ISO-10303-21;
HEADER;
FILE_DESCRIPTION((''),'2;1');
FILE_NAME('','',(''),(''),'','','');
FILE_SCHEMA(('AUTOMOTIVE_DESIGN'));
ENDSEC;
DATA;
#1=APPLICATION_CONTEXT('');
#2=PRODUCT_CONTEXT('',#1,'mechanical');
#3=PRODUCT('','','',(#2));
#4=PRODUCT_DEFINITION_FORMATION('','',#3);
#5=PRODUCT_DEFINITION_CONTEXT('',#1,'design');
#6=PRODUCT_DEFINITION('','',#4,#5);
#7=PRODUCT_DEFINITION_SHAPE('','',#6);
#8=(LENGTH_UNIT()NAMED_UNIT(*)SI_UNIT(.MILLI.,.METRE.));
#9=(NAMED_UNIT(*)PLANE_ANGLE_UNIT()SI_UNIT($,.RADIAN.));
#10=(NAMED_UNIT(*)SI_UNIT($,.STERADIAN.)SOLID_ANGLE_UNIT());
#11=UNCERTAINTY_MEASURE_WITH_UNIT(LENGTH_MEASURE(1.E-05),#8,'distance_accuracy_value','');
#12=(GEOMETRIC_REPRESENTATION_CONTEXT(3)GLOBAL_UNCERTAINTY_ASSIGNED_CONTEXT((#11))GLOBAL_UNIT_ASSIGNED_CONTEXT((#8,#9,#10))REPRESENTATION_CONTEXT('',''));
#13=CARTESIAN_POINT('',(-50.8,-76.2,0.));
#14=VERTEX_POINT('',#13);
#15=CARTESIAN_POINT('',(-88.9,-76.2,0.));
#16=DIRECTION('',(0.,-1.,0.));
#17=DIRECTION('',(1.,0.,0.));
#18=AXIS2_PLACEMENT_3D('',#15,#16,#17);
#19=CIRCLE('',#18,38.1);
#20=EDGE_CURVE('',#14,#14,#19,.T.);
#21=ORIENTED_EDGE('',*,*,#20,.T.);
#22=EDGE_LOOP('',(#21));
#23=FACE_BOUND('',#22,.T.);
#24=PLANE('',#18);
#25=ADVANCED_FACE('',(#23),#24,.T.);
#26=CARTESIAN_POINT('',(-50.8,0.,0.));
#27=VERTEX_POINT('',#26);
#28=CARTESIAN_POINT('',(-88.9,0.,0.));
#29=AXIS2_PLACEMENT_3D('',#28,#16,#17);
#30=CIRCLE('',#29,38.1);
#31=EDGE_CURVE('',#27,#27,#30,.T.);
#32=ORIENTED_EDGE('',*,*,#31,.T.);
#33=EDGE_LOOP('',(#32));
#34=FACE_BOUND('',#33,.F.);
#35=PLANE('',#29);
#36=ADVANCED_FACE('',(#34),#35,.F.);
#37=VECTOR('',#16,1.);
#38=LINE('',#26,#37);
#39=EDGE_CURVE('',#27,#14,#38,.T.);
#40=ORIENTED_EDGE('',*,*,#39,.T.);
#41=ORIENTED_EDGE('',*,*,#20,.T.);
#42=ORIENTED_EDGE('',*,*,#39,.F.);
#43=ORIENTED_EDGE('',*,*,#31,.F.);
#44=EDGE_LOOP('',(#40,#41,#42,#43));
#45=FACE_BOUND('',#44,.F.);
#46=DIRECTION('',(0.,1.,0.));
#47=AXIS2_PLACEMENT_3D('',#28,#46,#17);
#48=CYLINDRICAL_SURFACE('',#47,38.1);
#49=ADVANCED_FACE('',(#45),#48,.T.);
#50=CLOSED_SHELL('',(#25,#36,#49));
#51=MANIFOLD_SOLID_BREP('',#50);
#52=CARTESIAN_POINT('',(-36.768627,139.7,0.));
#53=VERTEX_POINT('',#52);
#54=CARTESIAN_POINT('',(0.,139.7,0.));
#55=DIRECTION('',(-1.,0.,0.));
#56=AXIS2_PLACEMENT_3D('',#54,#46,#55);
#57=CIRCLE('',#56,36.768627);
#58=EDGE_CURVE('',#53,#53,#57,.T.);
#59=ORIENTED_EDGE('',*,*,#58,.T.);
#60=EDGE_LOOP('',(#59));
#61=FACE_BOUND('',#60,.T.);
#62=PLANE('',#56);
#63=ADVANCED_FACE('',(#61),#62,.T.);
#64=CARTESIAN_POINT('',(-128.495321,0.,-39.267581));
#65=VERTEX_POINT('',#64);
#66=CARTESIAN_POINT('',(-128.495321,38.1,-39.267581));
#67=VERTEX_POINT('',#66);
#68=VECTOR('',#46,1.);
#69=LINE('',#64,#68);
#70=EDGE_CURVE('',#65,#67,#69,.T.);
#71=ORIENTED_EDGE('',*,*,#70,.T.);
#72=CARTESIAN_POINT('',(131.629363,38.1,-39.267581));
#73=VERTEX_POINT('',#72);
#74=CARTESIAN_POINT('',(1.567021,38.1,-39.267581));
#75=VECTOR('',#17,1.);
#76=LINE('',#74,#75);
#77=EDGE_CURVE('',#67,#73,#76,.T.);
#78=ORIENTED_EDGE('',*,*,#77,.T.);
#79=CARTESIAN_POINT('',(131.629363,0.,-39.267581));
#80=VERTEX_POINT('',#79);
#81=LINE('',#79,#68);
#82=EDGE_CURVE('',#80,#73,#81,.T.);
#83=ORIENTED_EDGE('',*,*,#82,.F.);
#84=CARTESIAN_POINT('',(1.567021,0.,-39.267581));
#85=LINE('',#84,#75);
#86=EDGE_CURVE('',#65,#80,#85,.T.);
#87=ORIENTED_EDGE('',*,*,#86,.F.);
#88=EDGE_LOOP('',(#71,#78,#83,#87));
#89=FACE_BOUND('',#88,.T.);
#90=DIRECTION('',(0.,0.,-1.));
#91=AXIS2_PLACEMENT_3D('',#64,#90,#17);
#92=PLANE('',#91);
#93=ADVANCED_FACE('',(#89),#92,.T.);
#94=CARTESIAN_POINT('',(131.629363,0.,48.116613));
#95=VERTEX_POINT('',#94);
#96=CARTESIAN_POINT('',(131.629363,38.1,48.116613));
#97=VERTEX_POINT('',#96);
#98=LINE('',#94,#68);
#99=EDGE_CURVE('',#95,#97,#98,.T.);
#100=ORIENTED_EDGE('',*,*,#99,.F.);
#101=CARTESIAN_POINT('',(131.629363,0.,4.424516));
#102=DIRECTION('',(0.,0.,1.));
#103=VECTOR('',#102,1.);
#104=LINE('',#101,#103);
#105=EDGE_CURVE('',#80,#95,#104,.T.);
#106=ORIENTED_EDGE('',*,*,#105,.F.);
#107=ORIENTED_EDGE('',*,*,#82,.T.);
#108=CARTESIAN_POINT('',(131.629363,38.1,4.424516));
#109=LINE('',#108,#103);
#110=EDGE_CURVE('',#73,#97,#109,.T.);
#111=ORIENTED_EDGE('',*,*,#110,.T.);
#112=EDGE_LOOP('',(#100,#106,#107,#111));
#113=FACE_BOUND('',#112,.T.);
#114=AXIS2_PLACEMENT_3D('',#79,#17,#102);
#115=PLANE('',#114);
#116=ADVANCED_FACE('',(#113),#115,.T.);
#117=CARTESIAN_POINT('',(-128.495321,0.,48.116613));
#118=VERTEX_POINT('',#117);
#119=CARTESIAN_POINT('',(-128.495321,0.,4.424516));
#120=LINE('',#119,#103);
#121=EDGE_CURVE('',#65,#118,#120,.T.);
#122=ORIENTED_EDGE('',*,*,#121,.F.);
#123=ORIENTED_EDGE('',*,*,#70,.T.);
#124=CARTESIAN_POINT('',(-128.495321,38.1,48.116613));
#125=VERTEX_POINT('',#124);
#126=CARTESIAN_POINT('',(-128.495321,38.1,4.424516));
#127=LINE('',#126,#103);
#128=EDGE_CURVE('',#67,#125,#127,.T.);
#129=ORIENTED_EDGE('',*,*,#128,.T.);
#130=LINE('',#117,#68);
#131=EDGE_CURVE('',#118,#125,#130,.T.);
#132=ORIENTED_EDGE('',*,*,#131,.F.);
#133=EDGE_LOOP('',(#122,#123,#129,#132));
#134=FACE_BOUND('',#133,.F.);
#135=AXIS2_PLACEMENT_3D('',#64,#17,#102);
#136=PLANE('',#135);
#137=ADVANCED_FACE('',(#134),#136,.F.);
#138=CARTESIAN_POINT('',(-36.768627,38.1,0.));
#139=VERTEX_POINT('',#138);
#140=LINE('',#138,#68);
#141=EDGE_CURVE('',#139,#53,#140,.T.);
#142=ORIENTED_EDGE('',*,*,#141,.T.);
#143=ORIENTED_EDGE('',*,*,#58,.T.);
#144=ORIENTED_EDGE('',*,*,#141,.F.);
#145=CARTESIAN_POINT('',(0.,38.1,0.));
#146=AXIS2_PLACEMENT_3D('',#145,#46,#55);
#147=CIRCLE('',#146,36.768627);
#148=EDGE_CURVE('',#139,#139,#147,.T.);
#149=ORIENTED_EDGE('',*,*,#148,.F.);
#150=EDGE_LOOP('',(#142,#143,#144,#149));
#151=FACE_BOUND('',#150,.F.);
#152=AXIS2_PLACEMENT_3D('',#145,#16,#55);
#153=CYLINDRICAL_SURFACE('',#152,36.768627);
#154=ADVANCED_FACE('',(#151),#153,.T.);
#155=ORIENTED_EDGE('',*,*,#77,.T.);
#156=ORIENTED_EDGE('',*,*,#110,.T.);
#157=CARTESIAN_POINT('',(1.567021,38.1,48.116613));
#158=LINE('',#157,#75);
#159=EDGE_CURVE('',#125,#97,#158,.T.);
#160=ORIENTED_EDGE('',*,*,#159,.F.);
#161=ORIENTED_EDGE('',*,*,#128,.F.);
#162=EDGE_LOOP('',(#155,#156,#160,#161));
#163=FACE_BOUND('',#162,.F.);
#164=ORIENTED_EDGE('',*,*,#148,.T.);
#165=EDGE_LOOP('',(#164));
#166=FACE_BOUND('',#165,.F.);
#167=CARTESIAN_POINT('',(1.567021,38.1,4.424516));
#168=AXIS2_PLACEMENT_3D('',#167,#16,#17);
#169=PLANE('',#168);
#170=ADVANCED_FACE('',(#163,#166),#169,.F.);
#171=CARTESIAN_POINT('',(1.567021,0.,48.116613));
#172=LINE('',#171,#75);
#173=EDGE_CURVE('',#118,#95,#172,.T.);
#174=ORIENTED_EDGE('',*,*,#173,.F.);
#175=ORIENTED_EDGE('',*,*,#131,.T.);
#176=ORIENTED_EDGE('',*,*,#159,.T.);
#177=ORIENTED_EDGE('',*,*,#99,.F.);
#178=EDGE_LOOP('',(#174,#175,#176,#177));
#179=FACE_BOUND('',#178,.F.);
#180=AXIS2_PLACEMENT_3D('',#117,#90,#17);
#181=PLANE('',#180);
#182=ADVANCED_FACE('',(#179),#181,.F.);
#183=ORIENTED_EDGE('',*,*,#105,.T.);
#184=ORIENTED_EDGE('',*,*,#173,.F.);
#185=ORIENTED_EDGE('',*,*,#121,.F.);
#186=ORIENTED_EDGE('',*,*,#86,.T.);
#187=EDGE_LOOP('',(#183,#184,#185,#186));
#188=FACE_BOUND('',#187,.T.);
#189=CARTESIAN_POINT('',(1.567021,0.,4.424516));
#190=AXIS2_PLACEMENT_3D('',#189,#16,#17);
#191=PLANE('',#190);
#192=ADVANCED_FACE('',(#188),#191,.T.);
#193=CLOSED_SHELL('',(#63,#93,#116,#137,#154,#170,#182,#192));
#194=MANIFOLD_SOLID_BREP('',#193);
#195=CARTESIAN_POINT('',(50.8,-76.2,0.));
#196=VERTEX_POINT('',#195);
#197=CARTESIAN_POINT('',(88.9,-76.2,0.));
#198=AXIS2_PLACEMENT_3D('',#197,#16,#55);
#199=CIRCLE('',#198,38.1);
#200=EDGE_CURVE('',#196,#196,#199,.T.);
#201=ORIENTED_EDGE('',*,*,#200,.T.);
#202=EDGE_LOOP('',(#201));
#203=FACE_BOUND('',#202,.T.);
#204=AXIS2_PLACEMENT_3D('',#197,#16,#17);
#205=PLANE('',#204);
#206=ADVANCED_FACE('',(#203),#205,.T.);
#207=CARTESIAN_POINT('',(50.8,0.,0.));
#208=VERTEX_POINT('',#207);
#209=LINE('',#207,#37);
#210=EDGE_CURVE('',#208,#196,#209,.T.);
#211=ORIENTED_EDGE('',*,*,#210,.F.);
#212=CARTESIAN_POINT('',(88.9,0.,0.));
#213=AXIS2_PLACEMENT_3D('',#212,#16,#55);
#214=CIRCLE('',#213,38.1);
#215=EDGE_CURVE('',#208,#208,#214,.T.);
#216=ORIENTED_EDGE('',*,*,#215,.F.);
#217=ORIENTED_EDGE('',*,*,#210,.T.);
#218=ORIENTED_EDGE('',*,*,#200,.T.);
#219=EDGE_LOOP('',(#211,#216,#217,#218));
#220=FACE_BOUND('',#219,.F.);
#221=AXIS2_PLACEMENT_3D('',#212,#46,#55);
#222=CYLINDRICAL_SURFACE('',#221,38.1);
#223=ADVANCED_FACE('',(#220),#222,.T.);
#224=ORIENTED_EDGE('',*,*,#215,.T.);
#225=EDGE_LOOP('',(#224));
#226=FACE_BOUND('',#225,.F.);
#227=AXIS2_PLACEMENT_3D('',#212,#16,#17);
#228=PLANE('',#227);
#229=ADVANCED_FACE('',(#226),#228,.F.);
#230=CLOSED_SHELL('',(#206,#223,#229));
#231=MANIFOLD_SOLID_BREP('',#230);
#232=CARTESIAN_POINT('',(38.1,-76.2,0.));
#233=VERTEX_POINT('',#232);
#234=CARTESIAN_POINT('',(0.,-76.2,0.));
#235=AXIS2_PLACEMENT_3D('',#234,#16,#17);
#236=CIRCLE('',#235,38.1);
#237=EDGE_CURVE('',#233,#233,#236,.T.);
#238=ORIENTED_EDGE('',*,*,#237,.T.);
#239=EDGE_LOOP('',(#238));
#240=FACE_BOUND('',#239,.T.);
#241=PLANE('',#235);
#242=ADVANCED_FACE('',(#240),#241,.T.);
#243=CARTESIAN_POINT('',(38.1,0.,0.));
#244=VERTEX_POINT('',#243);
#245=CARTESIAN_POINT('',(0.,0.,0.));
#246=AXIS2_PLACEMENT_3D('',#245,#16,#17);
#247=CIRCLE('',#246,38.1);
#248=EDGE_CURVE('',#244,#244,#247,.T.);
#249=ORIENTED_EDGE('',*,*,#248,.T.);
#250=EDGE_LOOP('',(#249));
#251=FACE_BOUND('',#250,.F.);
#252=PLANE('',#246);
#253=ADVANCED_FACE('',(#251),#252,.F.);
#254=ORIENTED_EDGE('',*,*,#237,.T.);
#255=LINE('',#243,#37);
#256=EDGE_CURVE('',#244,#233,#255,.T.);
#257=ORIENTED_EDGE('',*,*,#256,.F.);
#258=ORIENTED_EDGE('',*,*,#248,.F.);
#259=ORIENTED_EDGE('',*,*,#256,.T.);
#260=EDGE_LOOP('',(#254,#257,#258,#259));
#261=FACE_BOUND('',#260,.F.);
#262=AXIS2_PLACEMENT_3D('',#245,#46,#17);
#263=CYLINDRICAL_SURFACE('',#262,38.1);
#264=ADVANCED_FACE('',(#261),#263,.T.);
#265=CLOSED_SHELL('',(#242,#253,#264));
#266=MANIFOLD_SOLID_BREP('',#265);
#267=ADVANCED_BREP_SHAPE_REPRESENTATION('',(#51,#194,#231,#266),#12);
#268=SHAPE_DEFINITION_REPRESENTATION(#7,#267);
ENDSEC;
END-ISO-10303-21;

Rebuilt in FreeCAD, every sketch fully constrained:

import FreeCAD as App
import Part
import Sketcher

V = App.Vector
Q = App.Units.Quantity

doc = App.newDocument("Part")
body = doc.addObject("PartDesign::Body", "Body")
body.AllowCompound = True

# Sketch on XZ plane
sketch1 = doc.addObject("Sketcher::SketchObject", "Sketch")
body.addObject(sketch1)
sketch1.AttachmentSupport = (doc.XZ_Plane, [""])
sketch1.MapMode = "FlatFace"
sketch1.addGeometry([
    Part.Circle(V(0, 0, 0), V(0, 0, 1), 38),
    Part.Circle(V(-89, 0, 0), V(0, 0, 1), 38),
    Part.Circle(V(89, 0, 0), V(0, 0, 1), 38),
], False)
sketch1.addConstraint([
    Sketcher.Constraint("Coincident", 0, 3, -1, 1),
    Sketcher.Constraint("Equal", 0, 1),
    Sketcher.Constraint("Equal", 1, 2),
    Sketcher.Constraint("Symmetric", 1, 3, 2, 3, -1, 1),
    Sketcher.Constraint("PointOnObject", 1, 3, -1),
    Sketcher.Constraint("Diameter", 0, Q("3 in")),
    Sketcher.Constraint("DistanceX", 1, 3, 2, 3, Q("7 in")),
])
pad1 = doc.addObject("PartDesign::Pad", "Pad")
body.addObject(pad1)
pad1.Profile = sketch1
pad1.Length = Q("3 in")
body2 = doc.addObject("PartDesign::Body", "Body001")

# Sketch on XZ plane
sketch2 = doc.addObject("Sketcher::SketchObject", "Sketch001")
body2.addObject(sketch2)
sketch2.AttachmentSupport = (doc.getObject("XZ_Plane001"), [""])
sketch2.MapMode = "FlatFace"
sketch2.addGeometry([
    Part.LineSegment(V(-128, 48, 0), V(-128, -39, 0)),
    Part.LineSegment(V(-128, -39, 0), V(132, -39, 0)),
    Part.LineSegment(V(132, -39, 0), V(132, 48, 0)),
    Part.LineSegment(V(132, 48, 0), V(-128, 48, 0)),
], False)
sketch2.addConstraint([
    Sketcher.Constraint("Coincident", 0, 2, 1, 1),
    Sketcher.Constraint("Coincident", 1, 2, 2, 1),
    Sketcher.Constraint("Coincident", 2, 2, 3, 1),
    Sketcher.Constraint("Coincident", 3, 2, 0, 1),
    Sketcher.Constraint("Vertical", 0),
    Sketcher.Constraint("Horizontal", 1),
    Sketcher.Constraint("Vertical", 2),
    Sketcher.Constraint("Horizontal", 3),
    Sketcher.Constraint("DistanceX", 1, 1, 1, 2, Q("260.124684 mm")),
    Sketcher.Constraint("DistanceY", 0, 2, 0, 1, Q("87.384194 mm")),
    Sketcher.Constraint("DistanceX", 0, 2, -1, 1, Q("128.495321 mm")),
    Sketcher.Constraint("DistanceY", 0, 2, -1, 1, Q("39.267581 mm")),
])
pad2 = doc.addObject("PartDesign::Pad", "Pad001")
body2.addObject(pad2)
pad2.Profile = sketch2
pad2.Length = Q("1.5 in")
pad2.Reversed = True

# Sketch on XZ plane
sketch3 = doc.addObject("Sketcher::SketchObject", "Sketch002")
body2.addObject(sketch3)
sketch3.AttachmentSupport = (doc.getObject("XZ_Plane001"), [""])
sketch3.MapMode = "FlatFace"
sketch3.AttachmentOffset = App.Placement(V(0, 0, -1.5 * 25.4), App.Rotation())
sketch3.addGeometry(Part.Circle(V(0, 0, 0), V(0, 0, 1), 37), False)
sketch3.addConstraint([
    Sketcher.Constraint("Coincident", 0, 3, -1, 1),
    Sketcher.Constraint("Diameter", 0, Q("73.537254 mm")),
])
pad3 = doc.addObject("PartDesign::Pad", "Pad002")
body2.addObject(pad3)
pad3.Profile = sketch3
pad3.Length = Q("4 in")
pad3.Reversed = True

doc.recompute()
